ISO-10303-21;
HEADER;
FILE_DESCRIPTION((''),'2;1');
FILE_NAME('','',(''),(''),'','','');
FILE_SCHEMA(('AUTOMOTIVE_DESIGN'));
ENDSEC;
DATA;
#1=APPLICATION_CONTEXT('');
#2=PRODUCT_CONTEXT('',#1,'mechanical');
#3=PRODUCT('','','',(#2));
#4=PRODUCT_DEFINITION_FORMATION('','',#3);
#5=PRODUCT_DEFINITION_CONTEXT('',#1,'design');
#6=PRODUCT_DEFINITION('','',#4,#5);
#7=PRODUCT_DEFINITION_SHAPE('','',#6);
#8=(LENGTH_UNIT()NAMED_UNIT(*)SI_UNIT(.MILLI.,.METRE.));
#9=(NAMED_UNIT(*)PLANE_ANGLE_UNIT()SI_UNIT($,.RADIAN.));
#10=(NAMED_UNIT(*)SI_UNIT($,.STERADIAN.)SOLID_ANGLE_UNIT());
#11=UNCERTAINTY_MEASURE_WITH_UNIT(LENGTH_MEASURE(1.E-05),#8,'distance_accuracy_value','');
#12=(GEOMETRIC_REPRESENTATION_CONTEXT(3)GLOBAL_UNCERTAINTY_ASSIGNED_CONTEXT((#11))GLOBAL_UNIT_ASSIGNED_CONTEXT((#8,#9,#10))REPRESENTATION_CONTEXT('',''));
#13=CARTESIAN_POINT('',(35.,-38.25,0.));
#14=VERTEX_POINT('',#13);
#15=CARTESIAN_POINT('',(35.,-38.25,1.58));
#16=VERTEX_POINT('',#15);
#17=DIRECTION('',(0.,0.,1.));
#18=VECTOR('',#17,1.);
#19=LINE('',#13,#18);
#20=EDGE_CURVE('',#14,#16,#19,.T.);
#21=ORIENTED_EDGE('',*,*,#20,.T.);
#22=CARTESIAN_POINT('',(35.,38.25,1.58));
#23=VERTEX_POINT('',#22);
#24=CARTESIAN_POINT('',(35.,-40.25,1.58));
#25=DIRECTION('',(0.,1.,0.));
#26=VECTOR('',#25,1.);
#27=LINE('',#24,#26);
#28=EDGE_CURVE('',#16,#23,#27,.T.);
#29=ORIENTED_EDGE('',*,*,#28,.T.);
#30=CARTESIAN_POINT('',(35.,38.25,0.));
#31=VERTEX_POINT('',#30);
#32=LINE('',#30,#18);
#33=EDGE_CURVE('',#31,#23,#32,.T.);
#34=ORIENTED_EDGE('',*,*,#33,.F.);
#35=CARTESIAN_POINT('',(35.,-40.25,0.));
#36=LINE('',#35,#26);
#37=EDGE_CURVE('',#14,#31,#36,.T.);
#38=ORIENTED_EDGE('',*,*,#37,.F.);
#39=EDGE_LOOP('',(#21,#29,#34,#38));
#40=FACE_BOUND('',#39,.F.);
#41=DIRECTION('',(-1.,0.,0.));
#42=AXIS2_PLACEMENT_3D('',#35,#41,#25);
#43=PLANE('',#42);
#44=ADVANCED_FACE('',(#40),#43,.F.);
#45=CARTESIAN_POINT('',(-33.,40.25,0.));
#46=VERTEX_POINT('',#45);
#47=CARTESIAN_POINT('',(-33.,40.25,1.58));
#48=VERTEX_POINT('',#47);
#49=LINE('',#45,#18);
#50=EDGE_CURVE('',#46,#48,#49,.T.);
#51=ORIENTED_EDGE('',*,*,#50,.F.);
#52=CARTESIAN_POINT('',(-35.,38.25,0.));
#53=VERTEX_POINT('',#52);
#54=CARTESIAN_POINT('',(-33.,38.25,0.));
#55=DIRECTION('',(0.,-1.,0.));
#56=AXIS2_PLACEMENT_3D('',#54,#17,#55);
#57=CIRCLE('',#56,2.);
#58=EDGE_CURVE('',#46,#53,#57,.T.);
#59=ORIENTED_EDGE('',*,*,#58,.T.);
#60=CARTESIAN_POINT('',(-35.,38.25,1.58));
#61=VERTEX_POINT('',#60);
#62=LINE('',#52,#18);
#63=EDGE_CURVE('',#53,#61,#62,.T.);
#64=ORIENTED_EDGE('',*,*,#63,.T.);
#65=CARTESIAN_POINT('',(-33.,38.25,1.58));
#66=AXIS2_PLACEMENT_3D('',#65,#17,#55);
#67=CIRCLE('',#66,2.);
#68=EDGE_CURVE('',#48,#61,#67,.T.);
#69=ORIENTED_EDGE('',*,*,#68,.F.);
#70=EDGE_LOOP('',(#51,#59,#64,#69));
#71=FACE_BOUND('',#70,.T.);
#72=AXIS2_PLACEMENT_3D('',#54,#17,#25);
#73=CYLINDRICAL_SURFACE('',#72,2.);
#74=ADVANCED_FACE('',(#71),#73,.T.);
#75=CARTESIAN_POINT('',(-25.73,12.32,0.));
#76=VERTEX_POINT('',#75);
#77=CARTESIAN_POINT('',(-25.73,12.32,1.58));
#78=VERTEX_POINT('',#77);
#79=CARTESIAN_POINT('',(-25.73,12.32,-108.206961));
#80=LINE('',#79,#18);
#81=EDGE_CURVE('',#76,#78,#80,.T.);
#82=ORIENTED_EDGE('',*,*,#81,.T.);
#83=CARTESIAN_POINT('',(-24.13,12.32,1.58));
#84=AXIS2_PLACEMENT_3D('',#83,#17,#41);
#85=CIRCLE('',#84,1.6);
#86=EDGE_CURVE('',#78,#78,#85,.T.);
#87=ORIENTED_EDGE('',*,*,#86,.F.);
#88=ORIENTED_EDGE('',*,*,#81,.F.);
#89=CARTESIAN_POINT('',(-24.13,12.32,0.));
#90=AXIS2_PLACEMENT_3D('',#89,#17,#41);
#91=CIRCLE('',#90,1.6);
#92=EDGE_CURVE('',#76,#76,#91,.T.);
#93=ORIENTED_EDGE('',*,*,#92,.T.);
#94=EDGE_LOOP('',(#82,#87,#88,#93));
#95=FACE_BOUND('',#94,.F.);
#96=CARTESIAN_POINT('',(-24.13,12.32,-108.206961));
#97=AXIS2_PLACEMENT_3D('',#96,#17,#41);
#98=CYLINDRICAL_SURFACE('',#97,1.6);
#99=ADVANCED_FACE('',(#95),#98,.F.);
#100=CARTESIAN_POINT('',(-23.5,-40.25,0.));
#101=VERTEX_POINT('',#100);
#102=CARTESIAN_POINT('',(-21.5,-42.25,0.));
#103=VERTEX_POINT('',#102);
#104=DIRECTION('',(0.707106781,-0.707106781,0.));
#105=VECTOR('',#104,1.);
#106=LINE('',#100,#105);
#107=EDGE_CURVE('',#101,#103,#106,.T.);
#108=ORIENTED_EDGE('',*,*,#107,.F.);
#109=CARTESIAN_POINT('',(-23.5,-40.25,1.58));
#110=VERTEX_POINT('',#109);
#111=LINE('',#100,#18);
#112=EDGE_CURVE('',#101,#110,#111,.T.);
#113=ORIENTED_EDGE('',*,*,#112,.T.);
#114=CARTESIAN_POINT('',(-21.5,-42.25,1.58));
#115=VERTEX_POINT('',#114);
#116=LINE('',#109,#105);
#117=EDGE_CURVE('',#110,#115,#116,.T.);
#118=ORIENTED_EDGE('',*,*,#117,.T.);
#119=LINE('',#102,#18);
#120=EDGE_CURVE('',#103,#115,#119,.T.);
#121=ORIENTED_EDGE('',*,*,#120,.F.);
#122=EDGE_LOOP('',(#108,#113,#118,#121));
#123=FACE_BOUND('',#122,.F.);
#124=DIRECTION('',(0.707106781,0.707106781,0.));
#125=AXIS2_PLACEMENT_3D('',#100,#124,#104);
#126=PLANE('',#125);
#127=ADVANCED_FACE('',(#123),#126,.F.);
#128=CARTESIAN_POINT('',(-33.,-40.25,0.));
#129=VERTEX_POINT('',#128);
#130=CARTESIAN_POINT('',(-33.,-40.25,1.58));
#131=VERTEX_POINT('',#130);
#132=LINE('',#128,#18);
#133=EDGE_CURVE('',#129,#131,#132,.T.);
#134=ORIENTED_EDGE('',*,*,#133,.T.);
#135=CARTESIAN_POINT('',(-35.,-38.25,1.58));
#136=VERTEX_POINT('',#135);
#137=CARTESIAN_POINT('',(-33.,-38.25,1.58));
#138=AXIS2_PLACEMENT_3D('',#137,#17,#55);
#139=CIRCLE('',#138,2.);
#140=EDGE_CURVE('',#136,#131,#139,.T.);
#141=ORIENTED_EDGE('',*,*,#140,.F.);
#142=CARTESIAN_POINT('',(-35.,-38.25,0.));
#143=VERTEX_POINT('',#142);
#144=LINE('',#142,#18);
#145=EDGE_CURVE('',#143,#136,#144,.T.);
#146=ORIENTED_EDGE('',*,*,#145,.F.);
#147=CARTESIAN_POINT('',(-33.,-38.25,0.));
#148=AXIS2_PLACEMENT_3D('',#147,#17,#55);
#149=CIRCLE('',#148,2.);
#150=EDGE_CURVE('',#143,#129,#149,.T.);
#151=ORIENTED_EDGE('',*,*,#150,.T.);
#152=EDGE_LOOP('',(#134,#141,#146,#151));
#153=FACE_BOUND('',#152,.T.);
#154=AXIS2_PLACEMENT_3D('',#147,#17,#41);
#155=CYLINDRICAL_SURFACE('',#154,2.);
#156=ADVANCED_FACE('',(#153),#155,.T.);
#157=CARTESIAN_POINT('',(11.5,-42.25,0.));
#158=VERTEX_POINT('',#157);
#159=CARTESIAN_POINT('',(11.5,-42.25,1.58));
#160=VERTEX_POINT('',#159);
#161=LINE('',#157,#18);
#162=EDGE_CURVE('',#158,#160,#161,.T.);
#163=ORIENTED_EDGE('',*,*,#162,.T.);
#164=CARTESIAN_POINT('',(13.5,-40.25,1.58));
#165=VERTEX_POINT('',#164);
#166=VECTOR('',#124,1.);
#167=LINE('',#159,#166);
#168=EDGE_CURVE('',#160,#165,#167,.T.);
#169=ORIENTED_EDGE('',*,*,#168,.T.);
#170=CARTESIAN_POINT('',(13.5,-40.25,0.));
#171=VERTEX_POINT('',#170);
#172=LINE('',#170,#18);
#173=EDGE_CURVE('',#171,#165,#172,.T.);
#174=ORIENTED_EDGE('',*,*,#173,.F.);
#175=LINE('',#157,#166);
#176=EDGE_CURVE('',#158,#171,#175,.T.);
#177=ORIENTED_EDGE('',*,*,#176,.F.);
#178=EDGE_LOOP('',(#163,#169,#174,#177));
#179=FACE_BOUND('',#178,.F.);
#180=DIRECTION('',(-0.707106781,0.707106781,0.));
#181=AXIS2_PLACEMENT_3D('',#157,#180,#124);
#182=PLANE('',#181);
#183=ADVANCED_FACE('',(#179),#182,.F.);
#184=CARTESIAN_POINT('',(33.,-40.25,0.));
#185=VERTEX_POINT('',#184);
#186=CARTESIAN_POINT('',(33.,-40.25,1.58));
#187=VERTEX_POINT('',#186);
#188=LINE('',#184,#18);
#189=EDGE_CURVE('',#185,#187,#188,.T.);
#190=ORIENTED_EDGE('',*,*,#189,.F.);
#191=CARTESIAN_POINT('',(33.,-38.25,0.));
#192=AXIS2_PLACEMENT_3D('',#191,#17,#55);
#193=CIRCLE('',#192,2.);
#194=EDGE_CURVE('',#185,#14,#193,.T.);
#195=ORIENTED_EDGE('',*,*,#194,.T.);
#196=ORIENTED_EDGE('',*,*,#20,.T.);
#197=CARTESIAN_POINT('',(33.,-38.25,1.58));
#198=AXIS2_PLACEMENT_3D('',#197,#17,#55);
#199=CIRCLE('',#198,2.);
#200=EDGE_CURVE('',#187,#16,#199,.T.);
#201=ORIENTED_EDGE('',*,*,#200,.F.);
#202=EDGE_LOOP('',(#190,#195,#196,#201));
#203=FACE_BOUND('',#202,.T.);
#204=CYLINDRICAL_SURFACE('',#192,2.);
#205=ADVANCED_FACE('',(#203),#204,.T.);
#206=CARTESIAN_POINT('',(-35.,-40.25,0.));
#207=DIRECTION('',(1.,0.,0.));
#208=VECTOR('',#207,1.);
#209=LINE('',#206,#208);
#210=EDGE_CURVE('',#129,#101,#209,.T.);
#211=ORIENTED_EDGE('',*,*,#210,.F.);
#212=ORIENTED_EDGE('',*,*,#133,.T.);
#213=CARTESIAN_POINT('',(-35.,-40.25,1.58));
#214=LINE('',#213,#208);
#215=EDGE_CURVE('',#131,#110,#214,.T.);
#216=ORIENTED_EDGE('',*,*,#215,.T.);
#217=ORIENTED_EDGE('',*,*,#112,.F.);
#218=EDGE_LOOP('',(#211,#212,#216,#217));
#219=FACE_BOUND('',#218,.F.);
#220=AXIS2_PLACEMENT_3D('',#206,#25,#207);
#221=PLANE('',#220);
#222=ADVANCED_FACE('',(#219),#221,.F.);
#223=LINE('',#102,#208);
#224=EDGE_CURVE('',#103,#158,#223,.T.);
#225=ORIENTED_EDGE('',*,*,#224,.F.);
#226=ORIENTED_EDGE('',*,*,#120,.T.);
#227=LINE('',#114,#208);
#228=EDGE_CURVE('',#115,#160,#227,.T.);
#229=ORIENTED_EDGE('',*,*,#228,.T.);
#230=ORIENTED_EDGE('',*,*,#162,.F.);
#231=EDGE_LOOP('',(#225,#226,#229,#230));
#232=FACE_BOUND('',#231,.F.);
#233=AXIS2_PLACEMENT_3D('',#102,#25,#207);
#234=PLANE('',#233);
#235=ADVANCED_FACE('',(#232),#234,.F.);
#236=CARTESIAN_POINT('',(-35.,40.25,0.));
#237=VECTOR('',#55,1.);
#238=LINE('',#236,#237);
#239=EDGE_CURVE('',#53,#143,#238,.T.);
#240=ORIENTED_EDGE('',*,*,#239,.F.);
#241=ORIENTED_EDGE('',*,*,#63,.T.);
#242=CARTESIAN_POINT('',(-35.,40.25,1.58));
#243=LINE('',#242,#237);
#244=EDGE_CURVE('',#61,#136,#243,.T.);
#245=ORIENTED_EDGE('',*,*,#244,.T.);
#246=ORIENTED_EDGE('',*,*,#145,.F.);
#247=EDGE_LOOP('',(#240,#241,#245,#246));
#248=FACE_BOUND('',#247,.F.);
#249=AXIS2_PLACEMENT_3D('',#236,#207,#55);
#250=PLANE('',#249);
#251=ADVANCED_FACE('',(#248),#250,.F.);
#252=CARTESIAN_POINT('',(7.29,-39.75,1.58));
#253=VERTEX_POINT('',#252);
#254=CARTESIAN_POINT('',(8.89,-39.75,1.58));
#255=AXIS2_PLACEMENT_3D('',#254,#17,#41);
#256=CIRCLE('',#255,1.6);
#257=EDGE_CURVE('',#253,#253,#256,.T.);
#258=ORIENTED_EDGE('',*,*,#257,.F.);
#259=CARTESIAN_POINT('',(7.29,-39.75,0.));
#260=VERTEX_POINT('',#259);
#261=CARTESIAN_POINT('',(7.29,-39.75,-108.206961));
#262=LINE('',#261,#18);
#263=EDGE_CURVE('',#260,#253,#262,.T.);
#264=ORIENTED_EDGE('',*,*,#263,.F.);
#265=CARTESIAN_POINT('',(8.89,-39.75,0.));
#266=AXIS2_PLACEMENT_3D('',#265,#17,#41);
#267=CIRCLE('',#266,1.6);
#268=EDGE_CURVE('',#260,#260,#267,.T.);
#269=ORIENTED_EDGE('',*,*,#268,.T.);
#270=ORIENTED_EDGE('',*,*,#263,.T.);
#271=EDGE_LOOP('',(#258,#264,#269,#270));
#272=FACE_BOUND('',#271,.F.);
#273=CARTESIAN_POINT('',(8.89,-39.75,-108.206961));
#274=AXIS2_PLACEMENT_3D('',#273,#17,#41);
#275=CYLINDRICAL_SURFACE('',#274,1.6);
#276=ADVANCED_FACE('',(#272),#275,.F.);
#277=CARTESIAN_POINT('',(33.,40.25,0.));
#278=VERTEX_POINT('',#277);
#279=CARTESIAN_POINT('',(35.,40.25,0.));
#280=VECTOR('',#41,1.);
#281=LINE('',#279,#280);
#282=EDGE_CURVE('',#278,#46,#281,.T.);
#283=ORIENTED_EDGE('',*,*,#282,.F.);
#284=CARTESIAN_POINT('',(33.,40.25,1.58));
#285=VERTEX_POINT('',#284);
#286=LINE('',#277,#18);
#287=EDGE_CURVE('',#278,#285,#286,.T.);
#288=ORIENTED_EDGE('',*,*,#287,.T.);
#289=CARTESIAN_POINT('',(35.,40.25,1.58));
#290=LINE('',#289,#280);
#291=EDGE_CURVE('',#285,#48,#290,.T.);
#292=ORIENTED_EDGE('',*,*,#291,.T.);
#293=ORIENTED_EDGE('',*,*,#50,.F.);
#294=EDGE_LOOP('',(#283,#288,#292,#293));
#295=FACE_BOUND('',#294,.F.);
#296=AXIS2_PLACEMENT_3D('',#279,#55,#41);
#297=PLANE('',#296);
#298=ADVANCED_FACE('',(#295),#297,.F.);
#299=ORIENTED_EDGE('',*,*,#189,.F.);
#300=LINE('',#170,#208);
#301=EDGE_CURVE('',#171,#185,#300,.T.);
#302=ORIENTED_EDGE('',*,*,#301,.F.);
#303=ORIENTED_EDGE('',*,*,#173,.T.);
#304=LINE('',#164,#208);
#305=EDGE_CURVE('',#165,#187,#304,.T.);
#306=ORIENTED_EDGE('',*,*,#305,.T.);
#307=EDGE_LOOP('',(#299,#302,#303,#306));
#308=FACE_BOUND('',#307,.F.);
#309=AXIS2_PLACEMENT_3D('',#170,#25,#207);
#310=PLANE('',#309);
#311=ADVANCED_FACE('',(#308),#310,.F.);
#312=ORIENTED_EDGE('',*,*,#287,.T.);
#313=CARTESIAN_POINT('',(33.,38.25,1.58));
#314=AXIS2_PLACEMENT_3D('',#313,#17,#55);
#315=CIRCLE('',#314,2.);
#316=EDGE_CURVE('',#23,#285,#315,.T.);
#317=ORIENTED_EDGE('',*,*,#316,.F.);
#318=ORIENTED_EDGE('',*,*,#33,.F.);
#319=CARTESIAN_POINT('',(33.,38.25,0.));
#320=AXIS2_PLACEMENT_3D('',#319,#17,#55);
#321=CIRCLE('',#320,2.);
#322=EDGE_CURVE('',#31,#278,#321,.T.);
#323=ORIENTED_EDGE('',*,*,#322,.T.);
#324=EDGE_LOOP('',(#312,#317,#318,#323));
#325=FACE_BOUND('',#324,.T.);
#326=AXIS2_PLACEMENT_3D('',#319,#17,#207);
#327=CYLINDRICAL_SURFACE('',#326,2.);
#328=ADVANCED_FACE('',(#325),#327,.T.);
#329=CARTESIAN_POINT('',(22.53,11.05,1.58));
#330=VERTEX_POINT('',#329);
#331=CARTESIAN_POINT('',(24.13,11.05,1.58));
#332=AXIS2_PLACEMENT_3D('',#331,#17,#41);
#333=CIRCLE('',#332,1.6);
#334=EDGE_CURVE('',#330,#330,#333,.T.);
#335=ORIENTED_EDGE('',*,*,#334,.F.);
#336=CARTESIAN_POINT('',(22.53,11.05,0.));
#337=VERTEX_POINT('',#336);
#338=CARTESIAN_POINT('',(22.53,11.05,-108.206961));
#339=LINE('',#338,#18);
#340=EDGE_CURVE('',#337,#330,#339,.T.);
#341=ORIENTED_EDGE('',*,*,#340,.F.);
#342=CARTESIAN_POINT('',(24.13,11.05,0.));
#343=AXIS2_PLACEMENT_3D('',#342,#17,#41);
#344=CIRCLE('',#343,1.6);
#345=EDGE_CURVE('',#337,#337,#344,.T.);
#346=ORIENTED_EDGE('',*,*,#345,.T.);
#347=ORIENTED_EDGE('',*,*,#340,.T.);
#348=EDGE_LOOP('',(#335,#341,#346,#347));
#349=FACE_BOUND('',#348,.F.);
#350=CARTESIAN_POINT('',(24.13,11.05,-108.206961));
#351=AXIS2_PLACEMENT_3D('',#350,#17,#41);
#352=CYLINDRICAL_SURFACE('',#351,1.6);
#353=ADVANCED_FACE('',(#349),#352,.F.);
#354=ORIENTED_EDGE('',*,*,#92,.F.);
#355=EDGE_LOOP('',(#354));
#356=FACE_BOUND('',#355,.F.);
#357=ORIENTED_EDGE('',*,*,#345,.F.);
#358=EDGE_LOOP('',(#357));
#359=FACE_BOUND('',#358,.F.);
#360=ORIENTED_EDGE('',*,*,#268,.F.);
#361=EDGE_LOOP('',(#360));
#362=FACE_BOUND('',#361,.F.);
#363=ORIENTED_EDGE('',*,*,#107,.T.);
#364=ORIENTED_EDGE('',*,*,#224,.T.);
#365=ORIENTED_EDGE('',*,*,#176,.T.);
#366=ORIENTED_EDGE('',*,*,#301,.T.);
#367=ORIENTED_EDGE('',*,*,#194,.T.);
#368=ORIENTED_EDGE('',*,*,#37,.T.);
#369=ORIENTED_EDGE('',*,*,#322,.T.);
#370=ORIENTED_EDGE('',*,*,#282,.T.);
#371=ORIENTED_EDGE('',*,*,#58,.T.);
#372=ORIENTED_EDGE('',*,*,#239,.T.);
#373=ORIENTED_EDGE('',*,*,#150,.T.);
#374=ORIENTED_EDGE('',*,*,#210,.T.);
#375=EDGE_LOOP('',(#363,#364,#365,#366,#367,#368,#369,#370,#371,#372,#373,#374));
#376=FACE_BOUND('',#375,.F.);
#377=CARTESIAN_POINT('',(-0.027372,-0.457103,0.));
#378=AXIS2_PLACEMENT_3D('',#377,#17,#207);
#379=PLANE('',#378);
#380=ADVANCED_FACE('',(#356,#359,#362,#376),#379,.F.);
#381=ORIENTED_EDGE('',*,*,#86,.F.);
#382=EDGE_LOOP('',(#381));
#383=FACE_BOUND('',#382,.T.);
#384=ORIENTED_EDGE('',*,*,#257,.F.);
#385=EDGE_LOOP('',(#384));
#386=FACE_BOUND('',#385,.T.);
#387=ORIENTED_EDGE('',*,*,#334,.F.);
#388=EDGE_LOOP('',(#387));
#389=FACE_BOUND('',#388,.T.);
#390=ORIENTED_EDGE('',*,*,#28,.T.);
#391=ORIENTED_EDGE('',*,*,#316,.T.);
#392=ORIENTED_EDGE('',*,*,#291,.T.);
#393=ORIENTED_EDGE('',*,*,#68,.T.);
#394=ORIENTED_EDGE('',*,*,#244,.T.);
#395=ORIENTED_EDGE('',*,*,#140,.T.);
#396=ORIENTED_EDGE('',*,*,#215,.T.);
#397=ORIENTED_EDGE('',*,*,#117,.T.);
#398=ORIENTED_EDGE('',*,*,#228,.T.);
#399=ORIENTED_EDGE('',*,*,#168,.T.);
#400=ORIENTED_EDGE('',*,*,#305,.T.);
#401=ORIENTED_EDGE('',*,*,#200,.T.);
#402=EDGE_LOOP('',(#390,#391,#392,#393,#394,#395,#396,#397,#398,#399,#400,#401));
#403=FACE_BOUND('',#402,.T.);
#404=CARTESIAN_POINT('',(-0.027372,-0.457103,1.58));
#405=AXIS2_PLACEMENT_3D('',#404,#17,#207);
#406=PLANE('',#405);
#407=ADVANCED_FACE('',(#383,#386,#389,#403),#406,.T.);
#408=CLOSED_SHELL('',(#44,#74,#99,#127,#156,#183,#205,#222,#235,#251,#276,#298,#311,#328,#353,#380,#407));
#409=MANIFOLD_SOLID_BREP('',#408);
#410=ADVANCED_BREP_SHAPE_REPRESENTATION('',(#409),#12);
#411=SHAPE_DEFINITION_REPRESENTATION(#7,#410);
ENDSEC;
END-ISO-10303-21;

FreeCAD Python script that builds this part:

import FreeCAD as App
import Part
import Sketcher
from FreeCAD import Vector
Q = App.Units.Quantity


def edges_at(feature, points):
    """Names of the edges that pass closest to the given points."""
    edges = feature.Shape.Edges
    near = lambda p: min(range(len(edges)), key=lambda i: edges[i].distToShape(Part.Vertex(*p))[0])
    return sorted({f"Edge{near(p) + 1}" for p in points})

doc = App.newDocument("Part")
body = doc.addObject("PartDesign::Body", "Body")

sketch1 = body.newObject("Sketcher::SketchObject", "Sketch")
sketch1.AttachmentSupport = (doc.getObject("XY_Plane"), [""])
sketch1.MapMode = "FlatFace"
sketch1.addGeometry([
    Part.LineSegment(Vector(13.5, -40.25, 0), Vector(35, -40.25, 0)),
    Part.LineSegment(Vector(35, -40.25, 0), Vector(35, 40.25, 0)),
    Part.LineSegment(Vector(35, 40.25, 0), Vector(-35, 40.25, 0)),
    Part.LineSegment(Vector(-35, 40.25, 0), Vector(-35, -40.25, 0)),
    Part.LineSegment(Vector(-35, -40.25, 0), Vector(-23.5, -40.25, 0)),
    Part.LineSegment(Vector(-23.5, -40.25, 0), Vector(-21.5, -42.25, 0)),
    Part.LineSegment(Vector(-21.5, -42.25, 0), Vector(11.5, -42.25, 0)),
    Part.LineSegment(Vector(11.5, -42.25, 0), Vector(13.5, -40.25, 0)),
], False)
sketch1.addConstraint([
    Sketcher.Constraint("Coincident", 0, 2, 1, 1),
    Sketcher.Constraint("Coincident", 1, 2, 2, 1),
    Sketcher.Constraint("Coincident", 2, 2, 3, 1),
    Sketcher.Constraint("Coincident", 3, 2, 4, 1),
    Sketcher.Constraint("Coincident", 4, 2, 5, 1),
    Sketcher.Constraint("Coincident", 5, 2, 6, 1),
    Sketcher.Constraint("Coincident", 6, 2, 7, 1),
    Sketcher.Constraint("Coincident", 7, 2, 0, 1),
    Sketcher.Constraint("Horizontal", 0),
    Sketcher.Constraint("Vertical", 1),
    Sketcher.Constraint("Horizontal", 2),
    Sketcher.Constraint("Vertical", 3),
    Sketcher.Constraint("Horizontal", 4),
    Sketcher.Constraint("Horizontal", 6),
    Sketcher.Constraint("Symmetric", 0, 2, 2, 2, -1, 1),
    Sketcher.Constraint("Perpendicular", 5, 7),
    Sketcher.Constraint("Horizontal", 0, 2, 3, 2),
    Sketcher.Constraint("Equal", 5, 7),
    Sketcher.Constraint("DistanceX", 2, 2, 2, 1, Q("70 mm")),
    Sketcher.Constraint("DistanceX", 6, 1, 6, 2, Q("33 mm")),
    Sketcher.Constraint("DistanceX", 0, 1, 0, 2, Q("21.5 mm")),
    Sketcher.Constraint("DistanceX", 4, 1, 4, 2, Q("11.5 mm")),
    Sketcher.Constraint("DistanceY", 1, 1, 1, 2, Q("80.5 mm")),
])
pad1 = body.newObject("PartDesign::Pad", "Pad")
pad1.Profile = sketch1
pad1.Length = 1.58
doc.recompute()

fillet = body.newObject("PartDesign::Fillet", "Fillet")
fillet.Base = (pad1, edges_at(pad1, [
    (-35, 40.25, 0.79),
    (35, 40.25, 0.79),
    (-35, -40.25, 0.79),
    (35, -40.25, 0.79),
]))
fillet.Radius = 2

sketch2 = body.newObject("Sketcher::SketchObject", "Sketch001")
sketch2.AttachmentSupport = (doc.getObject("XY_Plane"), [""])
sketch2.MapMode = "FlatFace"
sketch2.addGeometry([
    Part.Circle(Vector(-24.13, 12.32, 0), Vector(0, 0, 1), 1.6),
    Part.Circle(Vector(24.13, 11.05, 0), Vector(0, 0, 1), 1.6),
    Part.Circle(Vector(8.89, -39.75, 0), Vector(0, 0, 1), 1.6),
], False)
sketch2.addConstraint([
    Sketcher.Constraint("Equal", 0, 1),
    Sketcher.Constraint("Equal", 1, 2),
    Sketcher.Constraint("Diameter", 0, Q("3.2 mm")),
    Sketcher.Constraint("DistanceY", 2, 3, 1, 3, Q("50.8 mm")),
    Sketcher.Constraint("DistanceX", 0, 3, -1, 1, Q("24.13 mm")),
    Sketcher.Constraint("DistanceY", -1, 1, 0, 3, Q("12.32 mm")),
    Sketcher.Constraint("DistanceX", -1, 1, 1, 3, Q("24.13 mm")),
    Sketcher.Constraint("DistanceY", -1, 1, 1, 3, Q("11.05 mm")),
    Sketcher.Constraint("DistanceX", -1, 1, 2, 3, Q("8.89 mm")),
])
doc.recompute()
hole = body.newObject("PartDesign::Hole", "Hole")
hole.Profile = sketch2
hole.ThreadType = "None"
hole.Diameter = 3.2
hole.DepthType = "ThroughAll"
hole.Reversed = True

doc.recompute()
